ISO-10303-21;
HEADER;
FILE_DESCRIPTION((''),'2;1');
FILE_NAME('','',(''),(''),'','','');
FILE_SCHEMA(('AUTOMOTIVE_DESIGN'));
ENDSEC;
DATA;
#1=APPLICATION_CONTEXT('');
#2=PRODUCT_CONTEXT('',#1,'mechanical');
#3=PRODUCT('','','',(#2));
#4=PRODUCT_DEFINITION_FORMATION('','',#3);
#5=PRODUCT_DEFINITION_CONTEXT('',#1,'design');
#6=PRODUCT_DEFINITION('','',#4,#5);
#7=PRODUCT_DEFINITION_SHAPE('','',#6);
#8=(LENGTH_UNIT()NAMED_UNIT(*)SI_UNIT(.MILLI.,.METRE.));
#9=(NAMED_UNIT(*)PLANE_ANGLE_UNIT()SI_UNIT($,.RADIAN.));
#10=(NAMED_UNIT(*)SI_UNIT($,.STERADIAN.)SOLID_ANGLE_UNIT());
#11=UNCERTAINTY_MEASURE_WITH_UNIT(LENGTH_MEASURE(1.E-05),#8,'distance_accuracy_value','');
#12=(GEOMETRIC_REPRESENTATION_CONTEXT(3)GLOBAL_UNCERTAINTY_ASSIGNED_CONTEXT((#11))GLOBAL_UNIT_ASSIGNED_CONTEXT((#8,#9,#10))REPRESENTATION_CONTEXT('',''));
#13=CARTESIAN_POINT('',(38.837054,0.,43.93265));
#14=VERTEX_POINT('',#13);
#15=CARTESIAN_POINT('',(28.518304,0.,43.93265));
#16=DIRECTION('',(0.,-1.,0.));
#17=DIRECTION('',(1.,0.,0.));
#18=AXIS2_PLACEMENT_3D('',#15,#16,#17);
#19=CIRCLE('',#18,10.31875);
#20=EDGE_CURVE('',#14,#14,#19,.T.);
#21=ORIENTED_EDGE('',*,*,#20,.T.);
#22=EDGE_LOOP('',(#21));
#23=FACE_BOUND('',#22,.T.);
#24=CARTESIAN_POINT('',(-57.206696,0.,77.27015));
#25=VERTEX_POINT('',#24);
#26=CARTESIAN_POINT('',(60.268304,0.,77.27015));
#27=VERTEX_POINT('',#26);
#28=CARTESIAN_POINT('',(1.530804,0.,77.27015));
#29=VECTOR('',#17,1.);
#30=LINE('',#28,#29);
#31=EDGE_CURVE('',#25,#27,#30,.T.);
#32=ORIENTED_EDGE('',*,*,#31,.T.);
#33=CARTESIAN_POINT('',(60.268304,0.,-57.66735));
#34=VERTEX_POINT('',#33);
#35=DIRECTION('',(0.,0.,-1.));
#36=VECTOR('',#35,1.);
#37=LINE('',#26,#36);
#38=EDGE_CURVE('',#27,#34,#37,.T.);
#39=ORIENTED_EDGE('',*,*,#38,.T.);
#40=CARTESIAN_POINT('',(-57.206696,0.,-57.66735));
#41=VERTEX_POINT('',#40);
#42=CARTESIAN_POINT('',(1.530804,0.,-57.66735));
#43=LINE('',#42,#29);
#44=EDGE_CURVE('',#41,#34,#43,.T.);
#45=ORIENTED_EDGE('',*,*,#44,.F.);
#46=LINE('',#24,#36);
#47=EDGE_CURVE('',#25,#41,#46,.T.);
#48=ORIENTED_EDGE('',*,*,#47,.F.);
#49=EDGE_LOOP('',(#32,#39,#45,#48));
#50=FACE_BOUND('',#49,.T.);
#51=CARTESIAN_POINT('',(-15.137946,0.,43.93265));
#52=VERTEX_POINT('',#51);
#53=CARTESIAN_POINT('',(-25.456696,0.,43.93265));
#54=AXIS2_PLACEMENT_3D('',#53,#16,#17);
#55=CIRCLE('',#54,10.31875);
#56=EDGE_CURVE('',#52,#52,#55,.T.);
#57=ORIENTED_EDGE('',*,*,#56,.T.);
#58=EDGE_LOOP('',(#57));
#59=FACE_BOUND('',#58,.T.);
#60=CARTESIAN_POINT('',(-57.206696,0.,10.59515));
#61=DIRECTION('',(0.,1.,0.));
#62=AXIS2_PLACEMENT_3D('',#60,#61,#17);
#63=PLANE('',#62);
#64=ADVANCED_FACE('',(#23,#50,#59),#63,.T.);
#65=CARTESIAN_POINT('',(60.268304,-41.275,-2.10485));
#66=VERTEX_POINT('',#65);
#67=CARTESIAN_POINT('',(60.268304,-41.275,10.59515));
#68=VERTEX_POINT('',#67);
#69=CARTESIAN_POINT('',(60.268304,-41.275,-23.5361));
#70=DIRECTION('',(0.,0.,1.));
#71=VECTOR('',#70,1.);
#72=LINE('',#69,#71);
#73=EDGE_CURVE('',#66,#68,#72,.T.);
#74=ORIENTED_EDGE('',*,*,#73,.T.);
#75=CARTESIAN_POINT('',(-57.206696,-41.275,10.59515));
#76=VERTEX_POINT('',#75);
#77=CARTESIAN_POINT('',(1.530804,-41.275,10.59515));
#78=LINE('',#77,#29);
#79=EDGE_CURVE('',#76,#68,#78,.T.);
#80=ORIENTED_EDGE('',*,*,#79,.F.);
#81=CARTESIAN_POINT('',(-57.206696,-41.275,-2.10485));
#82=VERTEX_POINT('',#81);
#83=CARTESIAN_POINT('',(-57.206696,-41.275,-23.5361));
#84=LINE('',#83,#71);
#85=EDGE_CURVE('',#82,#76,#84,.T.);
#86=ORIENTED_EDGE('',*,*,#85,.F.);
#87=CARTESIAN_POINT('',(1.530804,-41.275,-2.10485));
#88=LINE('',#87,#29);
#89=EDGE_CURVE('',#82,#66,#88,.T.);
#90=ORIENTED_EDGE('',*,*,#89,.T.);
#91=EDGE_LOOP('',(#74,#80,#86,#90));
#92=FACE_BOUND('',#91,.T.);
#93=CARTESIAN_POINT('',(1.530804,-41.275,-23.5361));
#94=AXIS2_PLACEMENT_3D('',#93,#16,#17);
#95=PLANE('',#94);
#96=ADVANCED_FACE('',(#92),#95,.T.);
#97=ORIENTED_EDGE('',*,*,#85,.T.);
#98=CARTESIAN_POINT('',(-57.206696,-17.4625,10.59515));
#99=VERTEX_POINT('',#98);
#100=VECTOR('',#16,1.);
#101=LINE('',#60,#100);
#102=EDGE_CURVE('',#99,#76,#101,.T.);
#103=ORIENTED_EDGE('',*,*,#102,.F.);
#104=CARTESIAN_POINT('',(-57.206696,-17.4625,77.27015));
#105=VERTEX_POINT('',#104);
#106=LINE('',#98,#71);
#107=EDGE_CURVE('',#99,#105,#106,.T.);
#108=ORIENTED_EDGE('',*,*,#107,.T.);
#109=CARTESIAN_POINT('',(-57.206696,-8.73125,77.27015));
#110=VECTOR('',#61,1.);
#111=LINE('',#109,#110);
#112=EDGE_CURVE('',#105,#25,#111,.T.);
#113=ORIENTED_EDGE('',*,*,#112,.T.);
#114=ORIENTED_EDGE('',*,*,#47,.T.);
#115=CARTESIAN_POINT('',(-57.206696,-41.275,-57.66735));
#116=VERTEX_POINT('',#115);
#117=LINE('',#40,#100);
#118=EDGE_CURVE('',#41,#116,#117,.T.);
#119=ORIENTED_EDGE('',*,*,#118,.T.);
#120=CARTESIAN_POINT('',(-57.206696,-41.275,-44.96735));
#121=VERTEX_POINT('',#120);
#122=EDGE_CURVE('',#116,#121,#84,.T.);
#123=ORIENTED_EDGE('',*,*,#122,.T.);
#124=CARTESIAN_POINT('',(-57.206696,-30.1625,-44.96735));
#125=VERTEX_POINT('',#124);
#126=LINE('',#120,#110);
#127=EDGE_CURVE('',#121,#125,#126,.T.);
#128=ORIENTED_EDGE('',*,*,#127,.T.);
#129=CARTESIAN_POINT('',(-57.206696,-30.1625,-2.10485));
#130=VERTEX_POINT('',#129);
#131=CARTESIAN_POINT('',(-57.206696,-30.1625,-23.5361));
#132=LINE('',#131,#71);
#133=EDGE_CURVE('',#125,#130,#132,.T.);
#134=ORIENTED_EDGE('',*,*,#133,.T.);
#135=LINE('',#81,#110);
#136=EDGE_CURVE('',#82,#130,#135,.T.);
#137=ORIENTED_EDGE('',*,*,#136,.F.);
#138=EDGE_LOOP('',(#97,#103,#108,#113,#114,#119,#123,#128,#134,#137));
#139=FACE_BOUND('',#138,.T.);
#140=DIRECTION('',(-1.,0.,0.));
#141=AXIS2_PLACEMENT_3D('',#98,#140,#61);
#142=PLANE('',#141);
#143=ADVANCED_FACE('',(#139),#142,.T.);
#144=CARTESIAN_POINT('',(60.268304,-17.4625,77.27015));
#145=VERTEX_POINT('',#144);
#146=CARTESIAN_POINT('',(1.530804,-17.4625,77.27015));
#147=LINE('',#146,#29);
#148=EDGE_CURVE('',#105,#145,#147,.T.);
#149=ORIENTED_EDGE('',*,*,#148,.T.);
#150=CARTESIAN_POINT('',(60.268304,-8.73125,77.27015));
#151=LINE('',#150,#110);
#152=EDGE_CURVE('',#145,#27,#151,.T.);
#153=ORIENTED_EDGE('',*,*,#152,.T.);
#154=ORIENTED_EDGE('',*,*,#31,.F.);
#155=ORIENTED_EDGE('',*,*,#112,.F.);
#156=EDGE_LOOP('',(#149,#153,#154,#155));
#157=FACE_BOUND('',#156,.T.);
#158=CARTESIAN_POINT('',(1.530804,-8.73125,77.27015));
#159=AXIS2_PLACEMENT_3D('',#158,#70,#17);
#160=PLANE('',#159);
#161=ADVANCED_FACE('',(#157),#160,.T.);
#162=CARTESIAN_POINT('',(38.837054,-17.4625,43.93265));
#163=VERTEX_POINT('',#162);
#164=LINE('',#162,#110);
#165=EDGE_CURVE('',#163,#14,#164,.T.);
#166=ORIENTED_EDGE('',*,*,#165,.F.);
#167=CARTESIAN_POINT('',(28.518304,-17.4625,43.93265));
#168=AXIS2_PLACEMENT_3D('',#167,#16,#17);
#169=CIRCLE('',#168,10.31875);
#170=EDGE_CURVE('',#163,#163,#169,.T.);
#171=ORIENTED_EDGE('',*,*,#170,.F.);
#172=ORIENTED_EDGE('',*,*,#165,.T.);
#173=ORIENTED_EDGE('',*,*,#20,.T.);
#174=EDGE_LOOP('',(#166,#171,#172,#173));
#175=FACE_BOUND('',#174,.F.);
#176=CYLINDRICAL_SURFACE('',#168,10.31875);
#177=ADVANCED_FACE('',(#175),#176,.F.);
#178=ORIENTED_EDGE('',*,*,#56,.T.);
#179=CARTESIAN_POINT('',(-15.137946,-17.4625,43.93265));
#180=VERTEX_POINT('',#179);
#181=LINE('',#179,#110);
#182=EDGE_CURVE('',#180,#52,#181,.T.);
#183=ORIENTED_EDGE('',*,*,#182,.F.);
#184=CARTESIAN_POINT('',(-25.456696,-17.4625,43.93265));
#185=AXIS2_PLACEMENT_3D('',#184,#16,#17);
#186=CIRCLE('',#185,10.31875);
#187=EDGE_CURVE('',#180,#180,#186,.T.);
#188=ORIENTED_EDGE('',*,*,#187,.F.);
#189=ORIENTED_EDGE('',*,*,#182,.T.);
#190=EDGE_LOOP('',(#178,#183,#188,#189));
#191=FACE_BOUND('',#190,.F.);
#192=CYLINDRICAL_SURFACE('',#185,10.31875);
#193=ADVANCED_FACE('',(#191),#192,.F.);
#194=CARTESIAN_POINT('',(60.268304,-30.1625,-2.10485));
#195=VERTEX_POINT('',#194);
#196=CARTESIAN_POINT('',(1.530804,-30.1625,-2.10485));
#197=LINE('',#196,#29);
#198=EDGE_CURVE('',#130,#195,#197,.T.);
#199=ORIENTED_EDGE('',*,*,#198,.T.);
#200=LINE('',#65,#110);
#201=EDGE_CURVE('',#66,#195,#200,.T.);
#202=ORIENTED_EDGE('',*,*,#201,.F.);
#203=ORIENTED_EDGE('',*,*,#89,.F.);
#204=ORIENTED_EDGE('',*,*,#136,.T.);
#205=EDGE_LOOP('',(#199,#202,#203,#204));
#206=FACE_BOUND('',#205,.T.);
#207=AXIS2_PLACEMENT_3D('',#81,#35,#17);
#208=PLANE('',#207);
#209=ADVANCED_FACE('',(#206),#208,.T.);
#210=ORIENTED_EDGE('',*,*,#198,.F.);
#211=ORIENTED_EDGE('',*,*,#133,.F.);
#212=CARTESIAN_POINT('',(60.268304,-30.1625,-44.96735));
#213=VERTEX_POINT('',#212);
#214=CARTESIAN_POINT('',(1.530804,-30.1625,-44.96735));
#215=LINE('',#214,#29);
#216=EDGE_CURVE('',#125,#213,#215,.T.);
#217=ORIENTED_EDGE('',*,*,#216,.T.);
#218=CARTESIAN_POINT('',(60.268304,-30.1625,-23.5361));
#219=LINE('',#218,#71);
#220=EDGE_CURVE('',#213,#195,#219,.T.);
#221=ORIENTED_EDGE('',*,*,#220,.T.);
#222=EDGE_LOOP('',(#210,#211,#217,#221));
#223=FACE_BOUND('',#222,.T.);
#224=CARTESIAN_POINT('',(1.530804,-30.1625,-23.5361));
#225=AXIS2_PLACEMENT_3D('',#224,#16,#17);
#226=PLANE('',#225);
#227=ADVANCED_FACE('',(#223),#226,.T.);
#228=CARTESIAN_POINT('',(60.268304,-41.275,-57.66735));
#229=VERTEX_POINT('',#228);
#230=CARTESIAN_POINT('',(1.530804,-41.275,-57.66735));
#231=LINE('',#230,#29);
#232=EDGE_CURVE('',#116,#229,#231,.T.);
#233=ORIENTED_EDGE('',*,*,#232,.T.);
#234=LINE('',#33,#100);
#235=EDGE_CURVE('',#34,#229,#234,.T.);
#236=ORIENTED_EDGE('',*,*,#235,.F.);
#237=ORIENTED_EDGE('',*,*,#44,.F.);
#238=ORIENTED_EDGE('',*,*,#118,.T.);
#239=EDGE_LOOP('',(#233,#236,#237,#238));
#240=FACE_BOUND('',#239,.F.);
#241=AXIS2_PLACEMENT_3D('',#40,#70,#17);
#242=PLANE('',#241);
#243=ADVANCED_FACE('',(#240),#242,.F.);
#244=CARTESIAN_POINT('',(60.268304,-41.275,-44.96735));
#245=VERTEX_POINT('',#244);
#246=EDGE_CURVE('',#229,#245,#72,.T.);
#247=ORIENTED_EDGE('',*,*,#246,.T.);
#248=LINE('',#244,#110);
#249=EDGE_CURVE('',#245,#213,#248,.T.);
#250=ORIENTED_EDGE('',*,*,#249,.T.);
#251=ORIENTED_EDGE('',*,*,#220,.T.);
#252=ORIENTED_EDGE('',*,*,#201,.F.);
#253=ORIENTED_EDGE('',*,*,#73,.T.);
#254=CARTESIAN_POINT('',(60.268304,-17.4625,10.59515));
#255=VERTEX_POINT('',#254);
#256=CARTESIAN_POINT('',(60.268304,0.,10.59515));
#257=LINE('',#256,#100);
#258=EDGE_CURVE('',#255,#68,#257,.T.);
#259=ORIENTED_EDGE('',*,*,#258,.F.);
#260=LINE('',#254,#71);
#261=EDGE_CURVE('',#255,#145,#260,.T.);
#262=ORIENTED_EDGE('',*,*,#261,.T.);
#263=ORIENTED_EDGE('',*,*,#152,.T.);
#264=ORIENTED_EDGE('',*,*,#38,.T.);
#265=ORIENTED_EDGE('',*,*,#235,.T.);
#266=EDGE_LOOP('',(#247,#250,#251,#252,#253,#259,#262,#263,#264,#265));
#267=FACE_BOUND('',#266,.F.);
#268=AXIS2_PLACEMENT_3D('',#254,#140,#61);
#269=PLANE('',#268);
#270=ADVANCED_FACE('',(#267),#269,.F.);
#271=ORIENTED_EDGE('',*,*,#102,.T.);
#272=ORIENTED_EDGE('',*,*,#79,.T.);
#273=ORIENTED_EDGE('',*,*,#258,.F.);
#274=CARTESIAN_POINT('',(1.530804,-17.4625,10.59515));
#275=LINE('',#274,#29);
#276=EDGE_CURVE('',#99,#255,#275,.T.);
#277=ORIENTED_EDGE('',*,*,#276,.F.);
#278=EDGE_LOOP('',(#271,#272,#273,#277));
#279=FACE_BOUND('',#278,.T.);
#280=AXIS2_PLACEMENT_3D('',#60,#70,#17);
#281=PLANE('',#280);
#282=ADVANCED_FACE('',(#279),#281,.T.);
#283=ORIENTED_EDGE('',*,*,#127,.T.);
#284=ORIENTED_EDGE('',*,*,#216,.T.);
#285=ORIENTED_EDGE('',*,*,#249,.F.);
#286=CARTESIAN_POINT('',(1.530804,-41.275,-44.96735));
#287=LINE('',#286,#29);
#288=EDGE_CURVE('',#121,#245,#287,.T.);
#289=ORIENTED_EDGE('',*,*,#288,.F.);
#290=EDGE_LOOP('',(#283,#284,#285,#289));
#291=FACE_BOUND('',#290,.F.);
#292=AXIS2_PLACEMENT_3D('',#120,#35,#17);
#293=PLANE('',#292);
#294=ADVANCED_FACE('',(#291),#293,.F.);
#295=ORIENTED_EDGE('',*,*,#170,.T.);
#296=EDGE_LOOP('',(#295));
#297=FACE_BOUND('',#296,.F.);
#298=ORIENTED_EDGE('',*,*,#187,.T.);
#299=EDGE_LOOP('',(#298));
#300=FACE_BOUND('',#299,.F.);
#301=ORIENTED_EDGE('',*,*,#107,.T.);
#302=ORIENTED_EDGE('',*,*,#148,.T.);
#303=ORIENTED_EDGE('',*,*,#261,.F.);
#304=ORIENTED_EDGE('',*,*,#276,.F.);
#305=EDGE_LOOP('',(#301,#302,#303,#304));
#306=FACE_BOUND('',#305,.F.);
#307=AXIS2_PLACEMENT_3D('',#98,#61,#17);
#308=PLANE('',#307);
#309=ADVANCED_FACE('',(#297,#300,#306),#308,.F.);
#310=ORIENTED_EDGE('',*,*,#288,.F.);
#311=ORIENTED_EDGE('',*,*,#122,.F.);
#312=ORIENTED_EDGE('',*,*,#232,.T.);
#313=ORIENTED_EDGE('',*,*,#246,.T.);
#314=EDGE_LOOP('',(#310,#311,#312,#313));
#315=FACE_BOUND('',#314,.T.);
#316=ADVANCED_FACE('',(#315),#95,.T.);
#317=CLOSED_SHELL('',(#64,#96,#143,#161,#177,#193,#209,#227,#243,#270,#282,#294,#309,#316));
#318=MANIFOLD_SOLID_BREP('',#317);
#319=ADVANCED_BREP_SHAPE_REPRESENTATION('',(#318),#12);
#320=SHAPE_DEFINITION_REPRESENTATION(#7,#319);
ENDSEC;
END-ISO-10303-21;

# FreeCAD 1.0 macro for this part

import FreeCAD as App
import Part
import Sketcher
Q = App.Units.Quantity

doc = App.newDocument("Part")
params = doc.addObject("Spreadsheet::Sheet", "Params")
for row, (alias, value) in enumerate([
    ("sketch1_width", "4.625 in"),
    ("sketch1_height", "2.6875 in"),
    ("pad1_length", "1.625 in"),
    ("sketch2_width", "4.625 in"),
    ("sketch2_height", "1.6875 in"),
    ("pocket1_length", "0.4375 in"),
    ("sketch3_width", "4.625 in"),
    ("sketch3_height", "0.6875 in"),
    ("pad2_length", "2.625 in"),
    ("sketch4_diameter", "0.8125 in"),
    ("pocket2_length", "4 in"),
], start=1):
    params.set(f"A{row}", alias)
    params.set(f"B{row}", "=" + value)
    params.setAlias(f"B{row}", alias)

body = doc.addObject("PartDesign::Body", "Body")

# Sketch on XZ plane
sketch1 = body.newObject("Sketcher::SketchObject", "Sketch")
sketch1.AttachmentSupport = (doc.getObject("XZ_Plane"), [""])
sketch1.MapMode = "FlatFace"
sketch1.addGeometry(Part.LineSegment(App.Vector(-57, 11, 0), App.Vector(-57, -58, 0)), False)
sketch1.addGeometry(Part.LineSegment(App.Vector(-57, -58, 0), App.Vector(60, -58, 0)), False)
sketch1.addGeometry(Part.LineSegment(App.Vector(60, -58, 0), App.Vector(60, 11, 0)), False)
sketch1.addGeometry(Part.LineSegment(App.Vector(60, 11, 0), App.Vector(-57, 11, 0)), False)
sketch1.addConstraint(Sketcher.Constraint("Coincident", 0, 2, 1, 1))
sketch1.addConstraint(Sketcher.Constraint("Coincident", 1, 2, 2, 1))
sketch1.addConstraint(Sketcher.Constraint("Coincident", 2, 2, 3, 1))
sketch1.addConstraint(Sketcher.Constraint("Coincident", 3, 2, 0, 1))
sketch1.addConstraint(Sketcher.Constraint("Vertical", 0))
sketch1.addConstraint(Sketcher.Constraint("Horizontal", 1))
sketch1.addConstraint(Sketcher.Constraint("Vertical", 2))
sketch1.addConstraint(Sketcher.Constraint("Horizontal", 3))
sketch1.addConstraint(Sketcher.Constraint("DistanceX", 1, 1, 1, 2, Q("4.625 in")))
sketch1.addConstraint(Sketcher.Constraint("DistanceY", 0, 2, 0, 1, Q("2.6875 in")))
sketch1.addConstraint(Sketcher.Constraint("DistanceY", 0, 2, -1, 1, Q("57.66735 mm")))
sketch1.addConstraint(Sketcher.Constraint("DistanceX", 0, 2, -1, 1, Q("57.206696 mm")))
sketch1.setExpression("Constraints[8]", "Params.sketch1_width")
sketch1.setExpression("Constraints[9]", "Params.sketch1_height")
pad1 = body.newObject("PartDesign::Pad", "Pad")
pad1.Profile = sketch1
pad1.setExpression("Length", "Params.pad1_length")

# Sketch on XZ plane
sketch2 = body.newObject("Sketcher::SketchObject", "Sketch001")
sketch2.AttachmentSupport = (doc.getObject("XZ_Plane"), [""])
sketch2.MapMode = "FlatFace"
sketch2.AttachmentOffset = App.Placement(App.Vector(0, 0, 1.625 * 25.4), App.Rotation())
sketch2.addGeometry(Part.LineSegment(App.Vector(-57, -2, 0), App.Vector(-57, -45, 0)), False)
sketch2.addGeometry(Part.LineSegment(App.Vector(-57, -45, 0), App.Vector(60, -45, 0)), False)
sketch2.addGeometry(Part.LineSegment(App.Vector(60, -45, 0), App.Vector(60, -2, 0)), False)
sketch2.addGeometry(Part.LineSegment(App.Vector(60, -2, 0), App.Vector(-57, -2, 0)), False)
sketch2.addConstraint(Sketcher.Constraint("Coincident", 0, 2, 1, 1))
sketch2.addConstraint(Sketcher.Constraint("Coincident", 1, 2, 2, 1))
sketch2.addConstraint(Sketcher.Constraint("Coincident", 2, 2, 3, 1))
sketch2.addConstraint(Sketcher.Constraint("Coincident", 3, 2, 0, 1))
sketch2.addConstraint(Sketcher.Constraint("Vertical", 0))
sketch2.addConstraint(Sketcher.Constraint("Horizontal", 1))
sketch2.addConstraint(Sketcher.Constraint("Vertical", 2))
sketch2.addConstraint(Sketcher.Constraint("Horizontal", 3))
sketch2.addConstraint(Sketcher.Constraint("DistanceX", 1, 1, 1, 2, Q("4.625 in")))
sketch2.addConstraint(Sketcher.Constraint("DistanceY", 0, 2, 0, 1, Q("1.6875 in")))
sketch2.addConstraint(Sketcher.Constraint("DistanceY", 0, 2, -1, 1, Q("44.96735 mm")))
sketch2.addConstraint(Sketcher.Constraint("DistanceX", 0, 2, -1, 1, Q("57.206696 mm")))
sketch2.setExpression("Constraints[8]", "Params.sketch2_width")
sketch2.setExpression("Constraints[9]", "Params.sketch2_height")
pocket1 = body.newObject("PartDesign::Pocket", "Pocket")
pocket1.Profile = sketch2
pocket1.setExpression("Length", "Params.pocket1_length")

# Sketch on XY plane
sketch3 = body.newObject("Sketcher::SketchObject", "Sketch002")
sketch3.AttachmentSupport = (doc.getObject("XY_Plane"), [""])
sketch3.MapMode = "FlatFace"
sketch3.AttachmentOffset = App.Placement(App.Vector(0, 0, 10.59515), App.Rotation())
sketch3.addGeometry(Part.LineSegment(App.Vector(-57, 0, 0), App.Vector(-57, -17, 0)), False)
sketch3.addGeometry(Part.LineSegment(App.Vector(-57, -17, 0), App.Vector(60, -17, 0)), False)
sketch3.addGeometry(Part.LineSegment(App.Vector(60, -17, 0), App.Vector(60, 0, 0)), False)
sketch3.addGeometry(Part.LineSegment(App.Vector(60, 0, 0), App.Vector(-57, 0, 0)), False)
sketch3.addConstraint(Sketcher.Constraint("Coincident", 0, 2, 1, 1))
sketch3.addConstraint(Sketcher.Constraint("Coincident", 1, 2, 2, 1))
sketch3.addConstraint(Sketcher.Constraint("Coincident", 2, 2, 3, 1))
sketch3.addConstraint(Sketcher.Constraint("Coincident", 3, 2, 0, 1))
sketch3.addConstraint(Sketcher.Constraint("Vertical", 0))
sketch3.addConstraint(Sketcher.Constraint("Horizontal", 1))
sketch3.addConstraint(Sketcher.Constraint("Vertical", 2))
sketch3.addConstraint(Sketcher.Constraint("Horizontal", 3))
sketch3.addConstraint(Sketcher.Constraint("PointOnObject", 2, 2, -1))
sketch3.addConstraint(Sketcher.Constraint("DistanceX", 1, 1, 1, 2, Q("4.625 in")))
sketch3.addConstraint(Sketcher.Constraint("DistanceY", 0, 2, 0, 1, Q("0.6875 in")))
sketch3.addConstraint(Sketcher.Constraint("DistanceX", 0, 2, -1, 1, Q("57.206696 mm")))
sketch3.setExpression("Constraints[9]", "Params.sketch3_width")
sketch3.setExpression("Constraints[10]", "Params.sketch3_height")
pad2 = body.newObject("PartDesign::Pad", "Pad001")
pad2.Profile = sketch3
pad2.setExpression("Length", "Params.pad2_length")

# Sketch on XZ plane
sketch4 = body.newObject("Sketcher::SketchObject", "Sketch003")
sketch4.AttachmentSupport = (doc.getObject("XZ_Plane"), [""])
sketch4.MapMode = "FlatFace"
sketch4.AttachmentOffset = App.Placement(App.Vector(0, 0, 0.6875 * 25.4), App.Rotation())
sketch4.addGeometry(Part.Circle(App.Vector(29, 44, 0), App.Vector(0, 0, 1), 10), False)
sketch4.addGeometry(Part.Circle(App.Vector(-25, 44, 0), App.Vector(0, 0, 1), 10), False)
sketch4.addConstraint(Sketcher.Constraint("Equal", 0, 1))
sketch4.addConstraint(Sketcher.Constraint("Horizontal", 0, 3, 1, 3))
sketch4.addConstraint(Sketcher.Constraint("Diameter", 0, Q("0.8125 in")))
sketch4.addConstraint(Sketcher.Constraint("DistanceX", 1, 3, 0, 3, Q("2.125 in")))
sketch4.addConstraint(Sketcher.Constraint("DistanceY", -1, 1, 0, 3, Q("43.93265 mm")))
sketch4.addConstraint(Sketcher.Constraint("DistanceX", -1, 1, 0, 3, Q("28.518304 mm")))
sketch4.setExpression("Constraints[2]", "Params.sketch4_diameter")
pocket2 = body.newObject("PartDesign::Pocket", "Pocket001")
pocket2.Profile = sketch4
pocket2.setExpression("Length", "Params.pocket2_length")

doc.recompute()
